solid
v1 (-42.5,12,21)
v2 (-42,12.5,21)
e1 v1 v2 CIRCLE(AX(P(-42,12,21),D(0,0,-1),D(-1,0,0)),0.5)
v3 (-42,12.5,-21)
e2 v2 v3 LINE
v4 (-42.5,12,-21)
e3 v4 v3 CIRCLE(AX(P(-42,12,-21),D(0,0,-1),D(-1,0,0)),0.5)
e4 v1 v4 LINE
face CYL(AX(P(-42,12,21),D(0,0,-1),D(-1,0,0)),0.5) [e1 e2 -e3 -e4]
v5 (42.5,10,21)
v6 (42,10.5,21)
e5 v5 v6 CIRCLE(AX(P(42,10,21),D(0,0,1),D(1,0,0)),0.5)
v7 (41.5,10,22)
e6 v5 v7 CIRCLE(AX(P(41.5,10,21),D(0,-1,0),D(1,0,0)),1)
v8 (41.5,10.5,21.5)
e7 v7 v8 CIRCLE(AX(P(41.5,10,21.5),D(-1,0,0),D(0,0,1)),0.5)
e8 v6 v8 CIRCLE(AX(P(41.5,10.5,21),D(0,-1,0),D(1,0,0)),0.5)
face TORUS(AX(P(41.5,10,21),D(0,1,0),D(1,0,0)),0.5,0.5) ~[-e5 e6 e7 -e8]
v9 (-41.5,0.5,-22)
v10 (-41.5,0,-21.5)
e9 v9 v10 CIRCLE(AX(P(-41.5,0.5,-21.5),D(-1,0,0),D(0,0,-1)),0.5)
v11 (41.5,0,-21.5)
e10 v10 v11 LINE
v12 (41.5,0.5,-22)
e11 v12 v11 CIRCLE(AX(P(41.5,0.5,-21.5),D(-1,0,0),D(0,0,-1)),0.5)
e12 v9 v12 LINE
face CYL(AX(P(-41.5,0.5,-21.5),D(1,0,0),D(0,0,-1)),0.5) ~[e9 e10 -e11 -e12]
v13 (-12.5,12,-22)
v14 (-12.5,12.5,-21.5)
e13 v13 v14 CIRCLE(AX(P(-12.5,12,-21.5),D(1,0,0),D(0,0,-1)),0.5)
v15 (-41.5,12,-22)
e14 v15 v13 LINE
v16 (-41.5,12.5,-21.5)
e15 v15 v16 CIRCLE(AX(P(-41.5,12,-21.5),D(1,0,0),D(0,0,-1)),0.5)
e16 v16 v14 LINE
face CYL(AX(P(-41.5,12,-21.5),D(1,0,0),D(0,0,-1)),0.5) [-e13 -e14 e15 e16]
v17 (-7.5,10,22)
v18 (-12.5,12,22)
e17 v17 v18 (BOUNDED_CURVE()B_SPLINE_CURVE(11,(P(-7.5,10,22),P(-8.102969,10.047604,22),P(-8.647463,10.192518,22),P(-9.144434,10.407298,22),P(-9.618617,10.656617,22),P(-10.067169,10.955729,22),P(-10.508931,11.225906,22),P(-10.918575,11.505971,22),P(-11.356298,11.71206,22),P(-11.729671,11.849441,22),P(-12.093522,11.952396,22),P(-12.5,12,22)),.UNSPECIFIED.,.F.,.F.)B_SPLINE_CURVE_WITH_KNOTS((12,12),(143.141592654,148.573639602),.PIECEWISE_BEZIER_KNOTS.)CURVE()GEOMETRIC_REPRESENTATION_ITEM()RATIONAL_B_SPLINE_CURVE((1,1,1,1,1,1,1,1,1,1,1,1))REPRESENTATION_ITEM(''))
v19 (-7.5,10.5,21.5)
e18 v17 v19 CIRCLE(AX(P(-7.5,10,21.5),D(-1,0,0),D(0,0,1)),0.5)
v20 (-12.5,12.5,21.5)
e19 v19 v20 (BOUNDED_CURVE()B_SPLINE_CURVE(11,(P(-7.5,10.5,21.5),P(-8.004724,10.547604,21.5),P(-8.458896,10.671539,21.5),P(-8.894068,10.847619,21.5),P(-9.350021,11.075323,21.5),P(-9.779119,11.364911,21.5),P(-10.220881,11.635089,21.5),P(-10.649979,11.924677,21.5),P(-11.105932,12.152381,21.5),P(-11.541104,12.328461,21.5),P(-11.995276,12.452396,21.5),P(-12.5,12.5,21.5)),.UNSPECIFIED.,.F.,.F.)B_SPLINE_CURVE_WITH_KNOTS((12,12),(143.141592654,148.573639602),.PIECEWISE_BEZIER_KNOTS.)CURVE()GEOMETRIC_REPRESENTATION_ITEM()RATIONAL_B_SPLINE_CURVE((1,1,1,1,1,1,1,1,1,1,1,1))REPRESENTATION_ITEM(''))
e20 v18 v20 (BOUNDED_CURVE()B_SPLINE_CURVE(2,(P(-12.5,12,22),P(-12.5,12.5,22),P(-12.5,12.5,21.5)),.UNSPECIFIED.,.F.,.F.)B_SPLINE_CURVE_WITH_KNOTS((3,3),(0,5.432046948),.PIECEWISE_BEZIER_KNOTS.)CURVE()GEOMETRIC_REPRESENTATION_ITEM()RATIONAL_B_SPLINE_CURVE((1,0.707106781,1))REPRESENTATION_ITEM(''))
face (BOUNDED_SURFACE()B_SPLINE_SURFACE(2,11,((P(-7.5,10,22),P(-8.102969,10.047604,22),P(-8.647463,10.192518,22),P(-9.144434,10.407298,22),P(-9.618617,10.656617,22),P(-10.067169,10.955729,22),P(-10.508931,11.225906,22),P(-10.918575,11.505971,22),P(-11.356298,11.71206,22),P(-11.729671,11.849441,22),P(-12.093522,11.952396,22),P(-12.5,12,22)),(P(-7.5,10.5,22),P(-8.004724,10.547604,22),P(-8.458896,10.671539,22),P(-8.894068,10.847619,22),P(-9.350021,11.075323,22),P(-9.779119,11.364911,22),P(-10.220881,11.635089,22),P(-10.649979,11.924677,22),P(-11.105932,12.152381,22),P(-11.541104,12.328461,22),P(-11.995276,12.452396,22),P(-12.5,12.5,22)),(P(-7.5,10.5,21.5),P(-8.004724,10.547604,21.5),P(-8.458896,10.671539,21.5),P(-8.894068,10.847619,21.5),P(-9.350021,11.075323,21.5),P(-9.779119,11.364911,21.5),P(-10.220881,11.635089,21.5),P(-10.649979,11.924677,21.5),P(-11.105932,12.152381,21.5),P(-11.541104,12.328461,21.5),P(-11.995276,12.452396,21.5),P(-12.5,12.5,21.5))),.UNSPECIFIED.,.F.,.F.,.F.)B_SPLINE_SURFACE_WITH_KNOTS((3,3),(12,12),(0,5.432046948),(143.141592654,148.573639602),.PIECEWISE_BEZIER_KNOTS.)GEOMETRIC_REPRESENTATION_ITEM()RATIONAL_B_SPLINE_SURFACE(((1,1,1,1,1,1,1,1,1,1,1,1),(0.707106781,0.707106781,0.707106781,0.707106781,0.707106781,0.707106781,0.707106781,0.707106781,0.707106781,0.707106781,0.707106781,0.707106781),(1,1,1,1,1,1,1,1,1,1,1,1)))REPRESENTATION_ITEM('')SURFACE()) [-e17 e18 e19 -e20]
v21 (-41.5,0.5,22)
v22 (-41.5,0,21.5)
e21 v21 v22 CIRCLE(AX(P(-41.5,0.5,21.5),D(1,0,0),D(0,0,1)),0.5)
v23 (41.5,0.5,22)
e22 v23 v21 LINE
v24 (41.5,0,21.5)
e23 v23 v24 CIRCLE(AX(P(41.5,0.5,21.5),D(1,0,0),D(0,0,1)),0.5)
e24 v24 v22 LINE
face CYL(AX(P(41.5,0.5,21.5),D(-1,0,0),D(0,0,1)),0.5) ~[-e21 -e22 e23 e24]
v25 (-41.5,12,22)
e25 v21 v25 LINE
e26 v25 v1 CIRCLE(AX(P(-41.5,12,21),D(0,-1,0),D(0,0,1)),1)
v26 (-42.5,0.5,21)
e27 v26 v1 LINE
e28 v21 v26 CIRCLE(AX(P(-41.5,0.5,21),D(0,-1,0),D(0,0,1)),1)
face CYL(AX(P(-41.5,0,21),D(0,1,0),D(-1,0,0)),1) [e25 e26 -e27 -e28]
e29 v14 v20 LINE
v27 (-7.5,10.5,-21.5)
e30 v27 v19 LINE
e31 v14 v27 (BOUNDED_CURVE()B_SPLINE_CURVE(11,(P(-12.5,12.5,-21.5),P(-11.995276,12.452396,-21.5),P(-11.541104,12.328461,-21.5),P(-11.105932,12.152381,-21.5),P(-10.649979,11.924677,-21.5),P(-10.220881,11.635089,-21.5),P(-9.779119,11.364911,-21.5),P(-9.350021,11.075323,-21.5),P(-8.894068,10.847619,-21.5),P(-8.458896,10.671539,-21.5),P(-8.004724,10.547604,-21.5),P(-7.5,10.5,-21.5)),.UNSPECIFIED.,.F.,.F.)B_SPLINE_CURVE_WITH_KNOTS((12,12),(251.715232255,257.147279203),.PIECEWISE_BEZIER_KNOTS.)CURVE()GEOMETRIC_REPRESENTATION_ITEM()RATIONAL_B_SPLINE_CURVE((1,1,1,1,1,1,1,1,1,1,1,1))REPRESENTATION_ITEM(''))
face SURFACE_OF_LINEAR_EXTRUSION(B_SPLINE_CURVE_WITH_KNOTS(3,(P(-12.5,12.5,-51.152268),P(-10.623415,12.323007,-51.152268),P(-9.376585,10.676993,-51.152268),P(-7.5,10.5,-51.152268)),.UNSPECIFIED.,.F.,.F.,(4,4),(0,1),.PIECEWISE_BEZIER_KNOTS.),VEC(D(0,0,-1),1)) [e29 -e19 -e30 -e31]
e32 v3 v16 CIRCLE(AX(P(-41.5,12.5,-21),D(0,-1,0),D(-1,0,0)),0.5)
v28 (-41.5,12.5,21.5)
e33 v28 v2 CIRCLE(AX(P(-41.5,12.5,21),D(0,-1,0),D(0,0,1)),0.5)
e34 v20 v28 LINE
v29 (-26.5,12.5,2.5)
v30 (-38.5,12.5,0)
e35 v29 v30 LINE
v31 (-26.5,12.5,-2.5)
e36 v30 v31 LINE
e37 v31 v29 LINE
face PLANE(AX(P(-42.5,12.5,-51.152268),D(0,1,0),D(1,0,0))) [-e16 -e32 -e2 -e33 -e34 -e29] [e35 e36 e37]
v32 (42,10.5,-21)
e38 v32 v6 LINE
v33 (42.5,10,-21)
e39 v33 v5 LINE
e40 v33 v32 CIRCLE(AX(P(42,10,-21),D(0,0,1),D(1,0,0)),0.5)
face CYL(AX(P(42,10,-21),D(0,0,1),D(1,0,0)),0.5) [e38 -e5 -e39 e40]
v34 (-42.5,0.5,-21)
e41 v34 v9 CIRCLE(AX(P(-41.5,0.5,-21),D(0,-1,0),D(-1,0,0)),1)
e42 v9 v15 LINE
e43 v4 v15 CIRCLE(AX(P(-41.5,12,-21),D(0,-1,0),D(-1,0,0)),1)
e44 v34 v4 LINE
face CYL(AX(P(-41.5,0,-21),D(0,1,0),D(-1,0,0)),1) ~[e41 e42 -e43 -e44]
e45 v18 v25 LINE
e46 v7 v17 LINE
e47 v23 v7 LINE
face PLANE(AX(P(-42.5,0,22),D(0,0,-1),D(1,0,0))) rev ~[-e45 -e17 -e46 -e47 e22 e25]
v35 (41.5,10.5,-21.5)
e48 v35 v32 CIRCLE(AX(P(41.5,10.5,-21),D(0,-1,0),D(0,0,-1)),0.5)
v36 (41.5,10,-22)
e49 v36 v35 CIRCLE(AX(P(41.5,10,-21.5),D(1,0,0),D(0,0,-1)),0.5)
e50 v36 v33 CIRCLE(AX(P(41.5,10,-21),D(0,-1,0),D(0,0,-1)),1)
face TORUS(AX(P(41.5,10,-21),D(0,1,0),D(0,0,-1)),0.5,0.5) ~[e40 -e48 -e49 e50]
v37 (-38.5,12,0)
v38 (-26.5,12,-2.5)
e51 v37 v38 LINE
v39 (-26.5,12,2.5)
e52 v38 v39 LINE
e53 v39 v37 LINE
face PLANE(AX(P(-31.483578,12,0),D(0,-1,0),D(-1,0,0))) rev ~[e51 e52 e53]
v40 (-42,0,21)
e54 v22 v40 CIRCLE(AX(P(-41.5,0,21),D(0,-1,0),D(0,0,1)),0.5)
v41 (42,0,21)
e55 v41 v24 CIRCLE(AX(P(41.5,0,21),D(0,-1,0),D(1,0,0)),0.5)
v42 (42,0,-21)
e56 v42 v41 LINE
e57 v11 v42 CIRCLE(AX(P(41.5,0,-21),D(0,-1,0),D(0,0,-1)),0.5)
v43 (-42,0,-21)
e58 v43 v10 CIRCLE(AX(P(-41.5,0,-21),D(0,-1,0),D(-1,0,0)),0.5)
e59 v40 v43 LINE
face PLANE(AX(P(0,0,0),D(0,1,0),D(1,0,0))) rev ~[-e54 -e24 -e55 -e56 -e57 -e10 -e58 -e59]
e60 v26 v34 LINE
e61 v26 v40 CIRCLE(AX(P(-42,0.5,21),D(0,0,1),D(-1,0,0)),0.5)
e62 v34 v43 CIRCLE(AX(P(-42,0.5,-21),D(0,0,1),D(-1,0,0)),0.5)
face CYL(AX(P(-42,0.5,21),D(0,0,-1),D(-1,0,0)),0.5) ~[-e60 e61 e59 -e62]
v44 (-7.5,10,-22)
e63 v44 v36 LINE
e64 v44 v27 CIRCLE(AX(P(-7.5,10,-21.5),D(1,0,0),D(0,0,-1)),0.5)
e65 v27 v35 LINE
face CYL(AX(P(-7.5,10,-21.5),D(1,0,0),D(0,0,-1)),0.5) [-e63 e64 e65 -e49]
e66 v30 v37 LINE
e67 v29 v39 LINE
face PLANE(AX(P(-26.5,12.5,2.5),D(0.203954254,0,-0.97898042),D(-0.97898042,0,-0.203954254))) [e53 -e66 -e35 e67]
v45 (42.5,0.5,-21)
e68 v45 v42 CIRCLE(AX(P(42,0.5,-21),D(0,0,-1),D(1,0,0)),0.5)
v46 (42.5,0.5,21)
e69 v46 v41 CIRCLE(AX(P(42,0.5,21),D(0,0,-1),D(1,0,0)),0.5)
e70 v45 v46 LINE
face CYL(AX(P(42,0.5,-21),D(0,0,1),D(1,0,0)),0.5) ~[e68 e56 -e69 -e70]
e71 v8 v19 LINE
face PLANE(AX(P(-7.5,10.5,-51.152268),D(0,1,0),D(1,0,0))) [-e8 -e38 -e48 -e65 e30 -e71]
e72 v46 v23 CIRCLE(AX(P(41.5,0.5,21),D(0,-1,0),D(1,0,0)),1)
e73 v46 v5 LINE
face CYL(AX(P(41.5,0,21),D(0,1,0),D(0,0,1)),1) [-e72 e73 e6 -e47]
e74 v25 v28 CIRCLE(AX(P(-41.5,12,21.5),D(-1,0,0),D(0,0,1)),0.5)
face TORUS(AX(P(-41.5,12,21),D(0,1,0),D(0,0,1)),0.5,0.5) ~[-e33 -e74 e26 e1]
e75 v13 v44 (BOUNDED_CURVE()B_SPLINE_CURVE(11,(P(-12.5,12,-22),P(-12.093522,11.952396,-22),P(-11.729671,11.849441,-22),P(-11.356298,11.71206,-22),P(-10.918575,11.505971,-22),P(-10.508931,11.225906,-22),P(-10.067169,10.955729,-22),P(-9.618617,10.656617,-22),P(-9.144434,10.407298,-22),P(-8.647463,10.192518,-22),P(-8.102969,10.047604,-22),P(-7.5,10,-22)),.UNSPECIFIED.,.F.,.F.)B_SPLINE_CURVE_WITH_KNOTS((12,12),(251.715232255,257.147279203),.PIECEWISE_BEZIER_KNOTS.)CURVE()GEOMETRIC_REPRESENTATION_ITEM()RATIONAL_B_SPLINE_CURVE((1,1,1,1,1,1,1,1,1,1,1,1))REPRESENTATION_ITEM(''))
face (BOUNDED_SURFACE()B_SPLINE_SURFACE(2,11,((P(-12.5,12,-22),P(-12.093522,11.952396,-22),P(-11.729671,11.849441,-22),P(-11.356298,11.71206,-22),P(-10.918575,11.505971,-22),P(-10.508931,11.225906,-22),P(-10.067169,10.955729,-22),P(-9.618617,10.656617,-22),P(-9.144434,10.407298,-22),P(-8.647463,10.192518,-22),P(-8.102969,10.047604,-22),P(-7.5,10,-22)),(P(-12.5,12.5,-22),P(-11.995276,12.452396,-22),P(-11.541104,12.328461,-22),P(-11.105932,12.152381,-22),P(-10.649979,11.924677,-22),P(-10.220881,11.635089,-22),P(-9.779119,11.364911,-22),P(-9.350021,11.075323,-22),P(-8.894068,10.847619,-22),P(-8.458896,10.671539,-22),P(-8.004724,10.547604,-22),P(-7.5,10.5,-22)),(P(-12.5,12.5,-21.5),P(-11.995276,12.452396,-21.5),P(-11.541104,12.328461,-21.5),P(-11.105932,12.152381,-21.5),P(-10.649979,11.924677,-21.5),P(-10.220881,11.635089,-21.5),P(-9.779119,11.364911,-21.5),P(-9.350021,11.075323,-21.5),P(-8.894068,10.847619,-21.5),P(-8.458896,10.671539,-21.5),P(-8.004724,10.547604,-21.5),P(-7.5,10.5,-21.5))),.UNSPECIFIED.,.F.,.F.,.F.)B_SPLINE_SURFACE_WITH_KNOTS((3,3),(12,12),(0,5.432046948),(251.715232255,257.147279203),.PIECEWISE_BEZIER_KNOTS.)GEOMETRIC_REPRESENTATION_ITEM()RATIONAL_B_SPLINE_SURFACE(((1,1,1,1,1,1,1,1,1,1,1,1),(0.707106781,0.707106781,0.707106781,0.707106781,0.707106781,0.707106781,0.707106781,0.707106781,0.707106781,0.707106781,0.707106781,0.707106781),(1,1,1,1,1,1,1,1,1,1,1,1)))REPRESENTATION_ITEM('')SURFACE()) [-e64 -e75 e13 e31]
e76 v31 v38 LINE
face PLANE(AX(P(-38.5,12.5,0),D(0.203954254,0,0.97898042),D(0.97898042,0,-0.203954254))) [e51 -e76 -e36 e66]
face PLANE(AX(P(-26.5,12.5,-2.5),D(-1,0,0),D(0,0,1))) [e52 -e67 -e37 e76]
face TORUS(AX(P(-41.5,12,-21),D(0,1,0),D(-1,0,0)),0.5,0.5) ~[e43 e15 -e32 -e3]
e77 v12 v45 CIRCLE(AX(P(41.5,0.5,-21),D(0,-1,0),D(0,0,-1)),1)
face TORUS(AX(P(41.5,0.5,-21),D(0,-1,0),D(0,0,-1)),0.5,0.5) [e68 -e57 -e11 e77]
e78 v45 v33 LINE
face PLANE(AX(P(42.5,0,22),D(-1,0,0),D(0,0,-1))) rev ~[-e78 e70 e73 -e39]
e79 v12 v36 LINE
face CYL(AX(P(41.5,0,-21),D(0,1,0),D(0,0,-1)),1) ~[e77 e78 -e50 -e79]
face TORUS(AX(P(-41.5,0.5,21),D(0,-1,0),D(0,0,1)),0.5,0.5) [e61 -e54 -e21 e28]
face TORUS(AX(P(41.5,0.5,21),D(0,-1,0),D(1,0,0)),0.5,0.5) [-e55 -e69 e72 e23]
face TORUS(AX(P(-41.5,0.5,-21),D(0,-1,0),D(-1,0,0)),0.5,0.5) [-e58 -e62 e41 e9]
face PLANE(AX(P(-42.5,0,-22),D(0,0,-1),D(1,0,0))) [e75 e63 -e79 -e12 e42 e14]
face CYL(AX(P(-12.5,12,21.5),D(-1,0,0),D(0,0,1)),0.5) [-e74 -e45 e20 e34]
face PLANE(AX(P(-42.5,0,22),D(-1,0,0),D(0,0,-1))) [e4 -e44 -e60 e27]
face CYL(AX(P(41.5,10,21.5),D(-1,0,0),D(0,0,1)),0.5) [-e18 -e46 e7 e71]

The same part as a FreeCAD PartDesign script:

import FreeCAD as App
import Part
import Sketcher


def edges_at(feature, points):
    """Names of the edges that pass closest to the given points."""
    edges = feature.Shape.Edges
    near = lambda p: min(range(len(edges)), key=lambda i: edges[i].distToShape(Part.Vertex(*p))[0])
    return sorted({f"Edge{near(p) + 1}" for p in points})


def add_polygon(sketch, points):
    """Adds a closed chain of lines whose ends are joined by coincident constraints."""
    first, n = sketch.GeometryCount, len(points)
    for a, b in zip(points, points[1:] + points[:1]):
        sketch.addGeometry(Part.LineSegment(App.Vector(*a, 0), App.Vector(*b, 0)), False)
    for i in range(n):
        sketch.addConstraint(Sketcher.Constraint("Coincident", first + i, 2, first + (i + 1) % n, 1))

doc = App.newDocument("Part")
body = doc.addObject("PartDesign::Body", "Body")

# Sketch on XZ plane
sketch1 = body.newObject("Sketcher::SketchObject", "Sketch")
sketch1.AttachmentSupport = (doc.getObject("XZ_Plane"), [""])
sketch1.MapMode = "FlatFace"
add_polygon(sketch1, [(-42, -22), (-42, 22), (42, 22), (42, -22)])  # lines 0-3
sketch1.addConstraint([
    Sketcher.Constraint("Vertical", 0),
    Sketcher.Constraint("Horizontal", 1),
    Sketcher.Constraint("Vertical", 2),
    Sketcher.Constraint("Horizontal", 3),
    Sketcher.Constraint("Symmetric", 0, 2, 2, 2, -1, 1),
    Sketcher.Constraint("DistanceX", 1, 1, 1, 2, 85.0),
    Sketcher.Constraint("DistanceY", 0, 1, 0, 2, 44.0),
])
pad1 = body.newObject("PartDesign::Pad", "Pad")
pad1.Profile = sketch1
pad1.Length = 15
pad1.Reversed = True

# Sketch on XY plane
sketch2 = body.newObject("Sketcher::SketchObject", "Sketch001")
sketch2.AttachmentSupport = (doc.getObject("XY_Plane"), [""])
sketch2.MapMode = "FlatFace"
sketch2.addGeometry([
    Part.LineSegment(App.Vector(-42.5, 12.5, 0), App.Vector(-12.5, 12.5, 0)),  # 0
    Part.BSplineCurve([App.Vector(-12.5, 12.5, 0), App.Vector(-10.623415, 12.323007, 0), App.Vector(-9.376585, 10.676993, 0), App.Vector(-7.5, 10.5, 0)], [4, 4], [0, 1], False, 3, [1, 1, 1, 1], False),  # 1
    Part.LineSegment(App.Vector(-7.5, 10.5, 0), App.Vector(42.5, 10.5, 0)),  # 2
    Part.LineSegment(App.Vector(42.5, 10.5, 0), App.Vector(42.5, 22.5, 0)),  # 3
    Part.LineSegment(App.Vector(42.5, 22.5, 0), App.Vector(-42.5, 22.5, 0)),  # 4
    Part.LineSegment(App.Vector(-42.5, 22.5, 0), App.Vector(-42.5, 12.5, 0)),  # 5
], False)
sketch2.addConstraint([
    Sketcher.Constraint("Block", 1),
    Sketcher.Constraint("Coincident", 0, 2, 1, 1),
    Sketcher.Constraint("Coincident", 1, 2, 2, 1),
    Sketcher.Constraint("Coincident", 2, 2, 3, 1),
    Sketcher.Constraint("Coincident", 3, 2, 4, 1),
    Sketcher.Constraint("Coincident", 4, 2, 5, 1),
    Sketcher.Constraint("Coincident", 5, 2, 0, 1),
    Sketcher.Constraint("Horizontal", 0),
    Sketcher.Constraint("Horizontal", 2),
    Sketcher.Constraint("Vertical", 3),
    Sketcher.Constraint("Horizontal", 4),
    Sketcher.Constraint("Vertical", 5),
    Sketcher.Constraint("DistanceX", 0, 1, 0, 2, 30.0),
    Sketcher.Constraint("DistanceX", 2, 1, 2, 2, 50.0),
    Sketcher.Constraint("DistanceY", 3, 1, 3, 2, 12.0),
])
pocket1 = body.newObject("PartDesign::Pocket", "Pocket")
pocket1.Profile = sketch2
pocket1.Type = "ThroughAll"
pocket1.Midplane = True
doc.recompute()

fillet = body.newObject("PartDesign::Fillet", "Fillet")
fillet.Base = (pocket1, edges_at(pocket1, [
    (42.5, 5.25, -22),
    (42.5, 5.25, 22),
    (-42.5, 6.25, 22),
    (-42.5, 6.25, -22),
]))
fillet.Radius = 1
doc.recompute()

fillet2 = body.newObject("PartDesign::Fillet", "Fillet001")
fillet2.Base = (fillet, edges_at(fillet, [
    (17, 10.5, -22),
    (-10, 11.5, -22),
    (-10, 11.5, 22),
    (17, 10.5, 22),
    (-42.5, 12.5, 0),
    (-27, 12.5, -22),
    (-27, 12.5, 22),
    (-42.207, 12.5, 21.707),
    (-42.207, 12.5, -21.707),
    (42.5, 10.5, 0),
    (42.207, 10.5, 21.707),
    (42.207, 10.5, -21.707),
]))
fillet2.Radius = 0.5
doc.recompute()

fillet3 = body.newObject("PartDesign::Fillet", "Fillet002")
fillet3.Base = (fillet2, edges_at(fillet2, [
    (-42.5, 0, 0),
    (0, 0, -22),
    (42.5, 0, 0),
    (0, 0, 22),
    (-42.207, 0, 21.707),
    (42.207, 0, 21.707),
    (42.207, 0, -21.707),
    (-42.207, 0, -21.707),
]))
fillet3.Radius = 0.5

# Sketch on XZ plane
sketch3 = body.newObject("Sketcher::SketchObject", "Sketch002")
sketch3.AttachmentSupport = (doc.getObject("XZ_Plane"), [""])
sketch3.MapMode = "FlatFace"
sketch3.AttachmentOffset = App.Placement(App.Vector(0, 0, -12.5), App.Rotation())
add_polygon(sketch3, [(-26, -2), (-38, 0), (-26, 2)])  # lines 0-2
sketch3.addConstraint([
    Sketcher.Constraint("Vertical", 2),
    Sketcher.Constraint("PointOnObject", 0, 2, -1),
    Sketcher.Constraint("Equal", 0, 1),
    Sketcher.Constraint("DistanceY", 2, 2, 2, 1, 5.0),
    Sketcher.Constraint("DistanceX", 0, 2, 1, 2, 12.0),
    Sketcher.Constraint("DistanceX", 0, 2, -1, 1, 38.5),
])
pocket2 = body.newObject("PartDesign::Pocket", "Pocket001")
pocket2.Profile = sketch3
pocket2.Length = 0.5
pocket2.Reversed = True

doc.recompute()
